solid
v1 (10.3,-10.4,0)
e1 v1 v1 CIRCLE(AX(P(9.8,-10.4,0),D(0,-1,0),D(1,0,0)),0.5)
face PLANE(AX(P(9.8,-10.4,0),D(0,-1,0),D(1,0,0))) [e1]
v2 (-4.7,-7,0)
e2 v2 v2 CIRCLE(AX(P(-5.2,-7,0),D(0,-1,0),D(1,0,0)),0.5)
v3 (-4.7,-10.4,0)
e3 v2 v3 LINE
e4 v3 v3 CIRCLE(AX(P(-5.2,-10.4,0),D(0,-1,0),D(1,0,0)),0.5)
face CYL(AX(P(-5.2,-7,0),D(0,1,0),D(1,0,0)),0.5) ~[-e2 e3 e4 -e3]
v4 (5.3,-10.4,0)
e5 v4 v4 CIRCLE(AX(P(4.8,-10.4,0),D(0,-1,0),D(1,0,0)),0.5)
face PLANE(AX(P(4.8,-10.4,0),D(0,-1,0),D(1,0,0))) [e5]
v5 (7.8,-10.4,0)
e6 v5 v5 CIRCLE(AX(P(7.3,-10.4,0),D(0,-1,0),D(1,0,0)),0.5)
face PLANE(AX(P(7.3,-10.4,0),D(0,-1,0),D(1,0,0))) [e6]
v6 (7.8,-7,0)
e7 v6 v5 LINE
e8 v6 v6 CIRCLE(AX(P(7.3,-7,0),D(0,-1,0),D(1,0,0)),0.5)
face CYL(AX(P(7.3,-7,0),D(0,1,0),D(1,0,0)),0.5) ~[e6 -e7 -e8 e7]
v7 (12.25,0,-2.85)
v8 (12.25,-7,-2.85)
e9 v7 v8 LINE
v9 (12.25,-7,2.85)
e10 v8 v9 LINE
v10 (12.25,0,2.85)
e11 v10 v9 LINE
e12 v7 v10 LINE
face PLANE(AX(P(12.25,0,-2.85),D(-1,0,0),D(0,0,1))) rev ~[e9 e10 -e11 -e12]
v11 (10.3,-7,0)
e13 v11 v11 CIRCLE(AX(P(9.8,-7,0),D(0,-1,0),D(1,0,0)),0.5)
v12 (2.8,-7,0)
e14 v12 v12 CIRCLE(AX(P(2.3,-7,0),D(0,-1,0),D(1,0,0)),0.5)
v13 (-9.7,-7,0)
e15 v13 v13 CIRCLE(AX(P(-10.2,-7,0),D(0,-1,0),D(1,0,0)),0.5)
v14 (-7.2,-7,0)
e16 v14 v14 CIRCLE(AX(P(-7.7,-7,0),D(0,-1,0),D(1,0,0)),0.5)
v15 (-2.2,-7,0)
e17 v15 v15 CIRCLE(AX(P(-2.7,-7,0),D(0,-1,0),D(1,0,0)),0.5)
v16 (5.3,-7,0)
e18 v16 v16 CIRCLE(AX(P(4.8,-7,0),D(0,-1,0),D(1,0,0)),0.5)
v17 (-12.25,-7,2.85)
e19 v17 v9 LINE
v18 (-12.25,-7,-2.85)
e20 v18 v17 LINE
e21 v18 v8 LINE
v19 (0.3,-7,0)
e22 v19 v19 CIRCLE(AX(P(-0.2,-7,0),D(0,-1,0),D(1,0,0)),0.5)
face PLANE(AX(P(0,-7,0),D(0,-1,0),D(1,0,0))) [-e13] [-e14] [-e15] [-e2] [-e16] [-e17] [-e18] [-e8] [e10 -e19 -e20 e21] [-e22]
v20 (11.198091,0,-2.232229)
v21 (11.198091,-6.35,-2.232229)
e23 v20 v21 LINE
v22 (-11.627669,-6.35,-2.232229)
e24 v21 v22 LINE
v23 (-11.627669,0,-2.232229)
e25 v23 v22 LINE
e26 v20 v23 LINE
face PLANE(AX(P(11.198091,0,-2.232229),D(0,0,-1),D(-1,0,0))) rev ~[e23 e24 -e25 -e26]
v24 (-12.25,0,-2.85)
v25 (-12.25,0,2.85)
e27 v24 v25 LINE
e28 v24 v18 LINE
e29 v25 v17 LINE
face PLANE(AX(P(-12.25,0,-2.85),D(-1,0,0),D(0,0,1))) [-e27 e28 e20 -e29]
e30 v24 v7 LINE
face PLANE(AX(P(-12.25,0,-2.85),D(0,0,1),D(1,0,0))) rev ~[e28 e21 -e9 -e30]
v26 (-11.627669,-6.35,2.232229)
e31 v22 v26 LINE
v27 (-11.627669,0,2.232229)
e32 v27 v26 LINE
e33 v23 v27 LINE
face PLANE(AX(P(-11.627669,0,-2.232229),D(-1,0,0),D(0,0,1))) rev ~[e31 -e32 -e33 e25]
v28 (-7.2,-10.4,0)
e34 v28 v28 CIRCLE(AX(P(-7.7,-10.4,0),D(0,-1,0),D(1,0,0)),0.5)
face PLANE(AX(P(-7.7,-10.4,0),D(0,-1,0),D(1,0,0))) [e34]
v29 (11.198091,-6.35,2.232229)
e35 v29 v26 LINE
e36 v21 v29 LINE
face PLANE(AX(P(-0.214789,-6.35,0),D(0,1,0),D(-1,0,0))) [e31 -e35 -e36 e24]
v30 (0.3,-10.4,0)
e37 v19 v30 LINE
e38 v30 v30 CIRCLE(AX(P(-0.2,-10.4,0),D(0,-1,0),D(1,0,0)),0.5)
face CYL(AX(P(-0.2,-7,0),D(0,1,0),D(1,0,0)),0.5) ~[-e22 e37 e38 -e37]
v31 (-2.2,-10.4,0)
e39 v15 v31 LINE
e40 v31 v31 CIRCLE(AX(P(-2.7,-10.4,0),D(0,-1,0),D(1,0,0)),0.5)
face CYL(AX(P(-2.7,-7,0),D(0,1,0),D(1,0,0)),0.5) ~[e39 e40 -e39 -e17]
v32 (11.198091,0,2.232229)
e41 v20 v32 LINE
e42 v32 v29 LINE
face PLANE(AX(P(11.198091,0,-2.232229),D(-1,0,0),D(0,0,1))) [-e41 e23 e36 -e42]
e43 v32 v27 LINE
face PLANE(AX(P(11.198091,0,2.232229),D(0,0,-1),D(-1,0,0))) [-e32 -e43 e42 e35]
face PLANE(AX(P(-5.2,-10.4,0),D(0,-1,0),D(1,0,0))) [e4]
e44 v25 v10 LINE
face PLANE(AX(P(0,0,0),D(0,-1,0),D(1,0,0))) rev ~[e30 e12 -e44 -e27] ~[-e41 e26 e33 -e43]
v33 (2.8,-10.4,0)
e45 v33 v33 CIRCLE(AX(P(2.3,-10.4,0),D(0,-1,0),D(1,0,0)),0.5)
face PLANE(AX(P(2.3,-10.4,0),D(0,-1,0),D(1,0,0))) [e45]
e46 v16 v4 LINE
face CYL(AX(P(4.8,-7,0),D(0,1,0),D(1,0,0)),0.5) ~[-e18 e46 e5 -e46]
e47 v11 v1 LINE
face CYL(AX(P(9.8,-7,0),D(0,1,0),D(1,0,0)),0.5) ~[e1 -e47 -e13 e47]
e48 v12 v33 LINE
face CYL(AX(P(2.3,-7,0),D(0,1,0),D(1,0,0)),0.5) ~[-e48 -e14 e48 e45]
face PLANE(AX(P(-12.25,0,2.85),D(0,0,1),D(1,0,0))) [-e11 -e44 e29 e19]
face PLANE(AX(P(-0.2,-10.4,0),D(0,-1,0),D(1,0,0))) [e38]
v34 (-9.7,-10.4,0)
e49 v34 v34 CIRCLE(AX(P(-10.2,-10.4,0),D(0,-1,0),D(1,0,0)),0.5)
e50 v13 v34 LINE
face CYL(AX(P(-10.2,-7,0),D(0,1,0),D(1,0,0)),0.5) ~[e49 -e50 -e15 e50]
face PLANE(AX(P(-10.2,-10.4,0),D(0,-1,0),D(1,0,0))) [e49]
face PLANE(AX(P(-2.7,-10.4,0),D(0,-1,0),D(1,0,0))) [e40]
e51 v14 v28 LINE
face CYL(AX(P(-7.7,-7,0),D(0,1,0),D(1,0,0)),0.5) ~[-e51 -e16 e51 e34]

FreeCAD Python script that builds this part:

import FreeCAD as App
import Part
import Sketcher

V = App.Vector
Q = App.Units.Quantity

doc = App.newDocument("Part")
body = doc.addObject("PartDesign::Body", "Body")

# Sketch on XZ plane
sketch1 = doc.addObject("Sketcher::SketchObject", "Sketch")
body.addObject(sketch1)
sketch1.AttachmentSupport = (doc.XZ_Plane, [""])
sketch1.MapMode = "FlatFace"
sketch1.addGeometry(Part.LineSegment(V(-12.25, 2.85, 0), V(-12.25, -2.85, 0)), False)
sketch1.addGeometry(Part.LineSegment(V(-12.25, -2.85, 0), V(12.25, -2.85, 0)), False)
sketch1.addGeometry(Part.LineSegment(V(12.25, -2.85, 0), V(12.25, 2.85, 0)), False)
sketch1.addGeometry(Part.LineSegment(V(12.25, 2.85, 0), V(-12.25, 2.85, 0)), False)
sketch1.addConstraint(Sketcher.Constraint("Coincident", 0, 2, 1, 1))
sketch1.addConstraint(Sketcher.Constraint("Coincident", 1, 2, 2, 1))
sketch1.addConstraint(Sketcher.Constraint("Coincident", 2, 2, 3, 1))
sketch1.addConstraint(Sketcher.Constraint("Coincident", 3, 2, 0, 1))
sketch1.addConstraint(Sketcher.Constraint("Vertical", 0))
sketch1.addConstraint(Sketcher.Constraint("Horizontal", 1))
sketch1.addConstraint(Sketcher.Constraint("Vertical", 2))
sketch1.addConstraint(Sketcher.Constraint("Horizontal", 3))
sketch1.addConstraint(Sketcher.Constraint("Symmetric", 0, 2, 2, 2, -1, 1))
sketch1.addConstraint(Sketcher.Constraint("DistanceX", 1, 1, 1, 2, Q("24.5 mm")))
sketch1.addConstraint(Sketcher.Constraint("DistanceY", 0, 2, 0, 1, Q("5.7 mm")))
pad1 = doc.addObject("PartDesign::Pad", "Pad")
body.addObject(pad1)
pad1.Profile = sketch1
pad1.Length = 7

# Sketch on XZ plane
sketch2 = doc.addObject("Sketcher::SketchObject", "Sketch001")
body.addObject(sketch2)
sketch2.AttachmentSupport = (doc.XZ_Plane, [""])
sketch2.MapMode = "FlatFace"
sketch2.AttachmentOffset = App.Placement(V(0, 0, 7), App.Rotation())
sketch2.addGeometry(Part.Circle(V(9.8, 0, 0), V(0, 0, 1), 0.5), False)
sketch2.addGeometry(Part.Circle(V(7.3, 0, 0), V(0, 0, 1), 0.5), False)
sketch2.addGeometry(Part.Circle(V(4.8, 0, 0), V(0, 0, 1), 0.5), False)
sketch2.addGeometry(Part.Circle(V(2.3, 0, 0), V(0, 0, 1), 0.5), False)
sketch2.addGeometry(Part.Circle(V(-0.2, 0, 0), V(0, 0, 1), 0.5), False)
sketch2.addGeometry(Part.Circle(V(-2.7, 0, 0), V(0, 0, 1), 0.5), False)
sketch2.addGeometry(Part.Circle(V(-5.2, 0, 0), V(0, 0, 1), 0.5), False)
sketch2.addGeometry(Part.Circle(V(-7.7, 0, 0), V(0, 0, 1), 0.5), False)
sketch2.addGeometry(Part.Circle(V(-10.2, 0, 0), V(0, 0, 1), 0.5), False)
sketch2.addConstraint(Sketcher.Constraint("Equal", 0, 1))
sketch2.addConstraint(Sketcher.Constraint("Equal", 1, 2))
sketch2.addConstraint(Sketcher.Constraint("Equal", 2, 3))
sketch2.addConstraint(Sketcher.Constraint("Equal", 3, 4))
sketch2.addConstraint(Sketcher.Constraint("Equal", 4, 5))
sketch2.addConstraint(Sketcher.Constraint("Equal", 5, 6))
sketch2.addConstraint(Sketcher.Constraint("Equal", 6, 7))
sketch2.addConstraint(Sketcher.Constraint("Equal", 7, 8))
sketch2.addConstraint(Sketcher.Constraint("PointOnObject", 0, 3, -1))
sketch2.addConstraint(Sketcher.Constraint("PointOnObject", 1, 3, -1))
sketch2.addConstraint(Sketcher.Constraint("PointOnObject", 2, 3, -1))
sketch2.addConstraint(Sketcher.Constraint("PointOnObject", 3, 3, -1))
sketch2.addConstraint(Sketcher.Constraint("PointOnObject", 4, 3, -1))
sketch2.addConstraint(Sketcher.Constraint("PointOnObject", 5, 3, -1))
sketch2.addConstraint(Sketcher.Constraint("PointOnObject", 6, 3, -1))
sketch2.addConstraint(Sketcher.Constraint("PointOnObject", 7, 3, -1))
sketch2.addConstraint(Sketcher.Constraint("PointOnObject", 8, 3, -1))
sketch2.addConstraint(Sketcher.Constraint("Diameter", 0, Q("1 mm")))
sketch2.addConstraint(Sketcher.Constraint("DistanceX", 2, 3, 0, 3, Q("5 mm")))
sketch2.addConstraint(Sketcher.Constraint("DistanceX", 3, 3, 1, 3, Q("5 mm")))
sketch2.addConstraint(Sketcher.Constraint("DistanceX", 4, 3, 2, 3, Q("5 mm")))
sketch2.addConstraint(Sketcher.Constraint("DistanceX", 5, 3, 3, 3, Q("5 mm")))
sketch2.addConstraint(Sketcher.Constraint("DistanceX", 6, 3, 4, 3, Q("5 mm")))
sketch2.addConstraint(Sketcher.Constraint("DistanceX", 7, 3, 5, 3, Q("5 mm")))
sketch2.addConstraint(Sketcher.Constraint("DistanceX", 8, 3, 6, 3, Q("5 mm")))
sketch2.addConstraint(Sketcher.Constraint("DistanceX", -1, 1, 0, 3, Q("9.8 mm")))
sketch2.addConstraint(Sketcher.Constraint("DistanceX", -1, 1, 1, 3, Q("7.3 mm")))
pad2 = doc.addObject("PartDesign::Pad", "Pad001")
body.addObject(pad2)
pad2.Profile = sketch2
pad2.Length = 3.4

# Sketch on XZ plane
sketch3 = doc.addObject("Sketcher::SketchObject", "Sketch002")
body.addObject(sketch3)
sketch3.AttachmentSupport = (doc.XZ_Plane, [""])
sketch3.MapMode = "FlatFace"
sketch3.addGeometry(Part.LineSegment(V(11.198091, 2.232229, 0), V(11.198091, -2.232229, 0)), False)
sketch3.addGeometry(Part.LineSegment(V(11.198091, -2.232229, 0), V(-11.627669, -2.232229, 0)), False)
sketch3.addGeometry(Part.LineSegment(V(-11.627669, -2.232229, 0), V(-11.627669, 2.232229, 0)), False)
sketch3.addGeometry(Part.LineSegment(V(-11.627669, 2.232229, 0), V(11.198091, 2.232229, 0)), False)
sketch3.addConstraint(Sketcher.Constraint("Coincident", 0, 2, 1, 1))
sketch3.addConstraint(Sketcher.Constraint("Coincident", 1, 2, 2, 1))
sketch3.addConstraint(Sketcher.Constraint("Coincident", 2, 2, 3, 1))
sketch3.addConstraint(Sketcher.Constraint("Coincident", 3, 2, 0, 1))
sketch3.addConstraint(Sketcher.Constraint("Vertical", 0))
sketch3.addConstraint(Sketcher.Constraint("Horizontal", 1))
sketch3.addConstraint(Sketcher.Constraint("Vertical", 2))
sketch3.addConstraint(Sketcher.Constraint("Horizontal", 3))
sketch3.addConstraint(Sketcher.Constraint("DistanceX", 1, 2, 1, 1, Q("22.82576 mm")))
sketch3.addConstraint(Sketcher.Constraint("DistanceY", 0, 2, 0, 1, Q("4.464458 mm")))
sketch3.addConstraint(Sketcher.Constraint("DistanceX", -1, 1, 0, 2, Q("11.198091 mm")))
sketch3.addConstraint(Sketcher.Constraint("DistanceY", 0, 2, -1, 1, Q("2.232229 mm")))
pocket1 = doc.addObject("PartDesign::Pocket", "Pocket")
body.addObject(pocket1)
pocket1.Profile = sketch3
pocket1.Length = 6.35
pocket1.Reversed = True

doc.recompute()
